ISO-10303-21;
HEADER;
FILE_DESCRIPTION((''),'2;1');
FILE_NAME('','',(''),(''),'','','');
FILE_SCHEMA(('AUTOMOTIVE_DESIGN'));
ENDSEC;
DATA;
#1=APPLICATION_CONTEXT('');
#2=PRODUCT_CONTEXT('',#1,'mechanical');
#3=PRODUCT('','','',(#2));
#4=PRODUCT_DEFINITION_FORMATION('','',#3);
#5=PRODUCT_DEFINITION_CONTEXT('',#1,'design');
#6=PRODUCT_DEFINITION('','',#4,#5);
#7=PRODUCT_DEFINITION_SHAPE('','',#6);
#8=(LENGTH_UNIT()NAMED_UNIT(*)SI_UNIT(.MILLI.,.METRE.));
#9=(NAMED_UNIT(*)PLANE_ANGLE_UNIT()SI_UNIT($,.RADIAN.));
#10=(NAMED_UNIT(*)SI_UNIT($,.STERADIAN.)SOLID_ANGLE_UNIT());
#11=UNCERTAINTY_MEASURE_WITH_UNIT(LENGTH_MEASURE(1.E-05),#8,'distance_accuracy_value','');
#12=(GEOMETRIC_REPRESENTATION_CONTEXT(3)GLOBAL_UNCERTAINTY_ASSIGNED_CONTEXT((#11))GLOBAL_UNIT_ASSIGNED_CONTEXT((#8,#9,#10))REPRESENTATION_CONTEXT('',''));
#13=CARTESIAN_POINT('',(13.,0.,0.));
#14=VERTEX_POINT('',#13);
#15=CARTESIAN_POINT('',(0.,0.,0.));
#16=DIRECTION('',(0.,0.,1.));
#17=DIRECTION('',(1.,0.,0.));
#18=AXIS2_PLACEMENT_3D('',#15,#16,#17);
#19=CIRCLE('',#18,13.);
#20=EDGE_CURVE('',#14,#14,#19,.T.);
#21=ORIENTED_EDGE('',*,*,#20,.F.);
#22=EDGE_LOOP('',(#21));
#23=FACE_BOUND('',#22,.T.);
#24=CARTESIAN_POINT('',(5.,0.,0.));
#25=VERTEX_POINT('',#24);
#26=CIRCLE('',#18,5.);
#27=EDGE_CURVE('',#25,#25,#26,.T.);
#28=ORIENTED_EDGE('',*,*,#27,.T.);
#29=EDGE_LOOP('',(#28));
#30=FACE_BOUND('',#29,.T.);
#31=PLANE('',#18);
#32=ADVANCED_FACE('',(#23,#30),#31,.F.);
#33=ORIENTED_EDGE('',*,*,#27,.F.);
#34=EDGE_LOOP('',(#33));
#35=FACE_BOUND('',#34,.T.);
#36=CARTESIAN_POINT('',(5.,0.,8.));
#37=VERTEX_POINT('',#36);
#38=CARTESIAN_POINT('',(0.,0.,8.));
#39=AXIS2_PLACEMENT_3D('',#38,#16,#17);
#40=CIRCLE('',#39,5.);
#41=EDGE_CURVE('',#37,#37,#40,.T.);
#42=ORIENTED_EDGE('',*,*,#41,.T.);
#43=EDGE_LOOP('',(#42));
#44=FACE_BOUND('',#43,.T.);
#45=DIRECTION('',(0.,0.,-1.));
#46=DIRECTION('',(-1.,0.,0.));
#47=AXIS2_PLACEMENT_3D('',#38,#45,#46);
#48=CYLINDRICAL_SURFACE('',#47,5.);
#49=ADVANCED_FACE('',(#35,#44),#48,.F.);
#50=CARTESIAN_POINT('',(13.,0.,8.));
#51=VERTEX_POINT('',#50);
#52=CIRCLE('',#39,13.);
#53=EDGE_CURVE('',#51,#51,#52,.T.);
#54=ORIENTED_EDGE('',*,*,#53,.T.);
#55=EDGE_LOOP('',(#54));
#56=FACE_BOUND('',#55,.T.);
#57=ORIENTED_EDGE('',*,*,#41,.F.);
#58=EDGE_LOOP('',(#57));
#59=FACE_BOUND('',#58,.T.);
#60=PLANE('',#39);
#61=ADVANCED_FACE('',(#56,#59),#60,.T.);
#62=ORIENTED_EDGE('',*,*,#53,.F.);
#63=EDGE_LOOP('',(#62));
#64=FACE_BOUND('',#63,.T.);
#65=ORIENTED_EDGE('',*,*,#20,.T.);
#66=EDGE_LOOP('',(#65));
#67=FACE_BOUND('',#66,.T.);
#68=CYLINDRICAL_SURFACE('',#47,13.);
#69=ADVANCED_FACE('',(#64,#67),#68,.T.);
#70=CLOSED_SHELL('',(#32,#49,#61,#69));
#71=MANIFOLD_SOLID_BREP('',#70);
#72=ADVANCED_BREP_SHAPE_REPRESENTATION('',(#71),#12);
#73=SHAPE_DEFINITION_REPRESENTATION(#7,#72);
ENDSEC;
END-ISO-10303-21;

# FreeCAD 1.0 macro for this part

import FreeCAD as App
import Part
import Sketcher

doc = App.newDocument("Part")
body = doc.addObject("PartDesign::Body", "Body")

# Sketch on XY plane
sketch1 = doc.addObject("Sketcher::SketchObject", "Sketch")
body.addObject(sketch1)
sketch1.AttachmentSupport = (doc.XY_Plane, [""])
sketch1.MapMode = "FlatFace"
sketch1.addGeometry([
    Part.Circle(App.Vector(0, 0, 0), App.Vector(0, 0, 1), 13),
    Part.Circle(App.Vector(0, 0, 0), App.Vector(0, 0, 1), 5),
], False)
sketch1.addConstraint([
    Sketcher.Constraint("Coincident", 0, 3, -1, 1),
    Sketcher.Constraint("Coincident", 1, 3, -1, 1),
    Sketcher.Constraint("Diameter", 0, 26.0),
    Sketcher.Constraint("Diameter", 1, 10.0),
])
pad1 = doc.addObject("PartDesign::Pad", "Pad")
body.addObject(pad1)
pad1.Profile = sketch1
pad1.Length = 8

doc.recompute()
